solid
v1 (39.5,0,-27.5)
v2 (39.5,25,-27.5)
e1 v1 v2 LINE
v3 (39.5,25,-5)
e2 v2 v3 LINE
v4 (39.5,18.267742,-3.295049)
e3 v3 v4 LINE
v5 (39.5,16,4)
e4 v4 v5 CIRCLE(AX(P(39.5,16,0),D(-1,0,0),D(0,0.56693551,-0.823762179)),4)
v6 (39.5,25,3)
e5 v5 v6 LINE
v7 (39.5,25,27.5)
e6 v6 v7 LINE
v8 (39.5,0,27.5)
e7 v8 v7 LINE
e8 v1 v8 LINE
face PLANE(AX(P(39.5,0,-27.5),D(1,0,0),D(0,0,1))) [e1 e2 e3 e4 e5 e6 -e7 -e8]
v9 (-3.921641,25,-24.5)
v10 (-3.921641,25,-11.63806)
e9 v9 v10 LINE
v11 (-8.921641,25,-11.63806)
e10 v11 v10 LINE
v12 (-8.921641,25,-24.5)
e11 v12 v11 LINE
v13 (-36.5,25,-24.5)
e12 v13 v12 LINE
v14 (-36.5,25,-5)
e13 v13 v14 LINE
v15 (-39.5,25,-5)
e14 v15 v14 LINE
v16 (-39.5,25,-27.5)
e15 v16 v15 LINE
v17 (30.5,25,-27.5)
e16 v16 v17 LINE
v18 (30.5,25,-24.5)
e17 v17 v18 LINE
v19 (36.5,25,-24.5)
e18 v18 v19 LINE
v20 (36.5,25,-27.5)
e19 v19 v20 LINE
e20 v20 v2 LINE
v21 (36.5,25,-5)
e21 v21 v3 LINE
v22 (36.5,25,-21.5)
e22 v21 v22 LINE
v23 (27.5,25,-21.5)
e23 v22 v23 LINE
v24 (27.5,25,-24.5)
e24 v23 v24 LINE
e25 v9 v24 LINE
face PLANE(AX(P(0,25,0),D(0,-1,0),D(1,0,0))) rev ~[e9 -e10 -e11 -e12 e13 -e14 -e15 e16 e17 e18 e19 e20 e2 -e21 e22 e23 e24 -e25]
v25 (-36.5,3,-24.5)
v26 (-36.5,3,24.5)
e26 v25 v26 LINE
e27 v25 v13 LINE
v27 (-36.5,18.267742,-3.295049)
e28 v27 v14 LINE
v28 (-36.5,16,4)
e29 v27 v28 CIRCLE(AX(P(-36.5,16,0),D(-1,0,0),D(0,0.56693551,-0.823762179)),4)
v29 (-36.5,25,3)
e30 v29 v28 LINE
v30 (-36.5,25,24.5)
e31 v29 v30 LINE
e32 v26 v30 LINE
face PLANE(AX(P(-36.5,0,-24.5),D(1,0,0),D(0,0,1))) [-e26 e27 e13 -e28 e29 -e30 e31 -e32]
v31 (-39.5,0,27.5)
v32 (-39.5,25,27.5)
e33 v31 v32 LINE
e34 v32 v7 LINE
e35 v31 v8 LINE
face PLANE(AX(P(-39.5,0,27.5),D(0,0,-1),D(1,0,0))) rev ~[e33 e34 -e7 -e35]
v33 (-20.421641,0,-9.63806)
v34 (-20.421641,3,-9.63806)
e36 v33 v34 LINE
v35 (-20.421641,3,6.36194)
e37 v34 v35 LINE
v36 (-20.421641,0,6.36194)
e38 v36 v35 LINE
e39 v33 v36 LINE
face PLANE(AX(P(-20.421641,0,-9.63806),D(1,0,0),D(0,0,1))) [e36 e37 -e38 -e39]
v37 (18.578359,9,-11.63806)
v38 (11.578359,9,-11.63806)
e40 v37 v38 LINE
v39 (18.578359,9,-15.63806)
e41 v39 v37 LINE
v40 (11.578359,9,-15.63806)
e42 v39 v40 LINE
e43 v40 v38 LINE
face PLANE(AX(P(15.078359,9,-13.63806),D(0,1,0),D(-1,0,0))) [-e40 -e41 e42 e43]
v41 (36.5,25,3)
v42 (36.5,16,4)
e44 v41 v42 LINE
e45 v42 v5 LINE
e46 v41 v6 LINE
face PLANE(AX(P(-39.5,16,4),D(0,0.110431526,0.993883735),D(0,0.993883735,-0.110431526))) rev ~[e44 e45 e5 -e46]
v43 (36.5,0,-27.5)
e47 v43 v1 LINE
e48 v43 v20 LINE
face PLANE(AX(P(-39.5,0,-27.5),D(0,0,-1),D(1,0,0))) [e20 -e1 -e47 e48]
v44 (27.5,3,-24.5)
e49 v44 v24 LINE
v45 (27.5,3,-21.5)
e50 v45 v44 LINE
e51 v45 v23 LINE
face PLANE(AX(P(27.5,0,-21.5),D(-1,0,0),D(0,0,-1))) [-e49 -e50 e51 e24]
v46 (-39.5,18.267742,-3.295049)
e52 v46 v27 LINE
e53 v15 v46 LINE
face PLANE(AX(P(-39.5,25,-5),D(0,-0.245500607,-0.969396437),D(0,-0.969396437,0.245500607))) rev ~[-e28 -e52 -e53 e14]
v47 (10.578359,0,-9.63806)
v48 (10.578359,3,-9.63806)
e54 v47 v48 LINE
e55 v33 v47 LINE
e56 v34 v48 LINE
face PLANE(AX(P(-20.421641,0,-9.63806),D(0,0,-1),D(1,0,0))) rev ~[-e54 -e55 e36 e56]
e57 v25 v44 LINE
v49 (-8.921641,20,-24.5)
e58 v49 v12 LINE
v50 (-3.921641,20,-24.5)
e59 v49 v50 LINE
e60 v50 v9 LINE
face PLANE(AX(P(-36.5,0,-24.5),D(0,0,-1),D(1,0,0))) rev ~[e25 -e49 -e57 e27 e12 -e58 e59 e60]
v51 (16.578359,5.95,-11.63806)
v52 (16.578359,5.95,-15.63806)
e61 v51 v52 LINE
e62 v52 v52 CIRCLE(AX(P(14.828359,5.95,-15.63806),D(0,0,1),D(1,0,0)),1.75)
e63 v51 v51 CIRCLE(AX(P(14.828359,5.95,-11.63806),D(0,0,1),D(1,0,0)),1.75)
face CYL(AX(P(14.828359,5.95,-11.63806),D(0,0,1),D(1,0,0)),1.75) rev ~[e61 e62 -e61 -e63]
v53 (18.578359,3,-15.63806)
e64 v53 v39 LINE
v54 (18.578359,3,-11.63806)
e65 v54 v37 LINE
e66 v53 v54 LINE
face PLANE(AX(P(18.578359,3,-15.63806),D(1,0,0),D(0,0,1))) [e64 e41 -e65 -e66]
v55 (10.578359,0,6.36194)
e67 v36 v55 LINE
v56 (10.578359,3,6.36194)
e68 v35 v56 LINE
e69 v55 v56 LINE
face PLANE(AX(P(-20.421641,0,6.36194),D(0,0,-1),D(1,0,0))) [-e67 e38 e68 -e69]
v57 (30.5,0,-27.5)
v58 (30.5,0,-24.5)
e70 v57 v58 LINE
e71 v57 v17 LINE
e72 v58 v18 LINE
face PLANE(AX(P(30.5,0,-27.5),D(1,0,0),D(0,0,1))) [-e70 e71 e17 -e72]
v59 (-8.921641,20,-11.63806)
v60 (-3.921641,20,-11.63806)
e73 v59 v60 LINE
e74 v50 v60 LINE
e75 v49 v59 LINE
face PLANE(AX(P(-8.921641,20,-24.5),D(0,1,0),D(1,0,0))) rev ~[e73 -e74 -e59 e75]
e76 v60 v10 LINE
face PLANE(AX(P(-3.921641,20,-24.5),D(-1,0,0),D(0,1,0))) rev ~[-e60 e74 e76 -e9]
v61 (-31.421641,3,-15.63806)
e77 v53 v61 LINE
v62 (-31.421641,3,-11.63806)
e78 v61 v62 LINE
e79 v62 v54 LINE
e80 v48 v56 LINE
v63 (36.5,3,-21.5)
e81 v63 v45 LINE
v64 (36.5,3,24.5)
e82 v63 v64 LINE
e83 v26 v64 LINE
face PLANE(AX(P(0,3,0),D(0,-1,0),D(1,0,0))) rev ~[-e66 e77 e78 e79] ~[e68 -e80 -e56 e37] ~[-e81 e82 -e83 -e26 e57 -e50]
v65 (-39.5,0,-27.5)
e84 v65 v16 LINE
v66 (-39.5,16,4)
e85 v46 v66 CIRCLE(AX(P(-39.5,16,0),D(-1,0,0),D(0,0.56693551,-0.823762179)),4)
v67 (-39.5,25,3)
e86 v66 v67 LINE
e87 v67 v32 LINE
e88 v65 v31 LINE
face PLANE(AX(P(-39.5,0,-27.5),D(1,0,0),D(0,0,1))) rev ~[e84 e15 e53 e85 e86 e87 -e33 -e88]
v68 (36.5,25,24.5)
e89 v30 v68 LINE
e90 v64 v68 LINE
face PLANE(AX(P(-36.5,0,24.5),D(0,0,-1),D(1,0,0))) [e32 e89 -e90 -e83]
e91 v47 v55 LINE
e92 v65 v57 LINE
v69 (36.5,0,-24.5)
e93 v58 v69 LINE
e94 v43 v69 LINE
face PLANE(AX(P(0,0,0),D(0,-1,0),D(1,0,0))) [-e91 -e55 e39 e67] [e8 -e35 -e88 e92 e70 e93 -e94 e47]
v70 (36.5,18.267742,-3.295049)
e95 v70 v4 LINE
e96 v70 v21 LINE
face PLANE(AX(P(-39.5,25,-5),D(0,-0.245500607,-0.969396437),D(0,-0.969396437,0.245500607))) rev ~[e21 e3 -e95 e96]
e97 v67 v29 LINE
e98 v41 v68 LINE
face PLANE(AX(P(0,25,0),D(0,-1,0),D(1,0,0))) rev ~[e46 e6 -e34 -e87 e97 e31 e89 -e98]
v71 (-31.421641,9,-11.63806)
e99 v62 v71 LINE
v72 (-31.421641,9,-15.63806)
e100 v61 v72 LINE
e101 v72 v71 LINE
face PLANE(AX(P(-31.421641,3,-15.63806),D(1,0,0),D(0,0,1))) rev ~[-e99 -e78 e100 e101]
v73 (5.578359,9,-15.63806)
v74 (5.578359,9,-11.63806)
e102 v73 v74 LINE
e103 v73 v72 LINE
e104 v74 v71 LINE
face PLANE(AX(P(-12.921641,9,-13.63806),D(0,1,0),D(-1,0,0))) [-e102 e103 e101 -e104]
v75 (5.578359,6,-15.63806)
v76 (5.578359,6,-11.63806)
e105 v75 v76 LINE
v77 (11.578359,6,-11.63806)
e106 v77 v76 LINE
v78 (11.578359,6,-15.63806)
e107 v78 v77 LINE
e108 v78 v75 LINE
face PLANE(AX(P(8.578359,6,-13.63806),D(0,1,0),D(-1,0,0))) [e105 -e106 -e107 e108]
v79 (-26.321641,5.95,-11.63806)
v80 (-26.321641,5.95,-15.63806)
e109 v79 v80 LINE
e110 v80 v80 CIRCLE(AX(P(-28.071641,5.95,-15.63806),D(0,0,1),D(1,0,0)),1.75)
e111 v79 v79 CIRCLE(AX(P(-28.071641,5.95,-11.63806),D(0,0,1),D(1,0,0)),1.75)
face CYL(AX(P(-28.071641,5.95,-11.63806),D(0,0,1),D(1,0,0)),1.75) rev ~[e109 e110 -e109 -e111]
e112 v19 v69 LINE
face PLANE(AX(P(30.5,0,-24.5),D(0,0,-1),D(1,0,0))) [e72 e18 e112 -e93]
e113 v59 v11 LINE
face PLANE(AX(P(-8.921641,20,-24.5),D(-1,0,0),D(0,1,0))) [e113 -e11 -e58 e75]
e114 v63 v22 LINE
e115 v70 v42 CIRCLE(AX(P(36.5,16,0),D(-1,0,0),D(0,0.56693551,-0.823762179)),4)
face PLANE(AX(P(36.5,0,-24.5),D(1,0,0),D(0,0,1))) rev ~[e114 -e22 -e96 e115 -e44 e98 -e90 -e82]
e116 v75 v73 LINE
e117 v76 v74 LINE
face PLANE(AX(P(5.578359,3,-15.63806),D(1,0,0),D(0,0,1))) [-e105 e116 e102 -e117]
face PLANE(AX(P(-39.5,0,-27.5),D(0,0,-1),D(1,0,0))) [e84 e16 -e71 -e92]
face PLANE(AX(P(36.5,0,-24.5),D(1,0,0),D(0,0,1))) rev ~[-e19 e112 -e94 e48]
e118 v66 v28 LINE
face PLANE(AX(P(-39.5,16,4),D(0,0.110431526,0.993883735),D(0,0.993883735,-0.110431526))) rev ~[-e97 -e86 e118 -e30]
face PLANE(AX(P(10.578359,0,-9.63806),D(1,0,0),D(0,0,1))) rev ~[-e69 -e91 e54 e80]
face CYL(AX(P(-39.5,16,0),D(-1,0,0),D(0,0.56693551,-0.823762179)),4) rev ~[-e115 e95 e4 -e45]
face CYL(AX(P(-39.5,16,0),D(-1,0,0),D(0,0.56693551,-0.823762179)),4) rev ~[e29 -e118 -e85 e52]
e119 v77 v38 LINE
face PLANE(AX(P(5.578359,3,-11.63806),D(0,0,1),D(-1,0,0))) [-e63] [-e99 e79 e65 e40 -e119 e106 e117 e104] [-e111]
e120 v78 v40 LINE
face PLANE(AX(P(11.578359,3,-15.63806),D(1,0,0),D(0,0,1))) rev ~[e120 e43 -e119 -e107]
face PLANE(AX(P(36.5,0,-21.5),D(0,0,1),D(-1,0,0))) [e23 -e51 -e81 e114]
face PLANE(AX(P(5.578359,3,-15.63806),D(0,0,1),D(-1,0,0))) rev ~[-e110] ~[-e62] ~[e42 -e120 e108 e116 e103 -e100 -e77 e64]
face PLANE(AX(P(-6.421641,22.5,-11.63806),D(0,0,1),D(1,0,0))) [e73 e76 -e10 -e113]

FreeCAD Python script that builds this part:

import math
import FreeCAD as App
import Part
import Sketcher
from FreeCAD import Vector

doc = App.newDocument("Part")
body = doc.addObject("PartDesign::Body", "Body")

# Sketch on XZ plane
sketch1 = body.newObject("Sketcher::SketchObject", "Sketch")
sketch1.AttachmentSupport = (doc.getObject("XZ_Plane"), [""])
sketch1.MapMode = "FlatFace"
sketch1.addGeometry([
    Part.LineSegment(Vector(-40, 28, 0), Vector(-40, -28, 0)),  # 0
    Part.LineSegment(Vector(-40, -28, 0), Vector(40, -28, 0)),  # 1
    Part.LineSegment(Vector(40, -28, 0), Vector(40, 28, 0)),  # 2
    Part.LineSegment(Vector(40, 28, 0), Vector(-40, 28, 0)),  # 3
    Part.LineSegment(Vector(36, -24, 0), Vector(-36, -24, 0)),  # 4
    Part.LineSegment(Vector(-36, -24, 0), Vector(-36, 24, 0)),  # 5
    Part.LineSegment(Vector(-36, 24, 0), Vector(36, 24, 0)),  # 6
    Part.LineSegment(Vector(36, 24, 0), Vector(36, -24, 0)),  # 7
], False)
sketch1.addConstraint([
    Sketcher.Constraint("Coincident", 0, 2, 1, 1),
    Sketcher.Constraint("Coincident", 1, 2, 2, 1),
    Sketcher.Constraint("Coincident", 2, 2, 3, 1),
    Sketcher.Constraint("Coincident", 3, 2, 0, 1),
    Sketcher.Constraint("Coincident", 4, 2, 5, 1),
    Sketcher.Constraint("Coincident", 5, 2, 6, 1),
    Sketcher.Constraint("Coincident", 6, 2, 7, 1),
    Sketcher.Constraint("Coincident", 7, 2, 4, 1),
    Sketcher.Constraint("Vertical", 0),
    Sketcher.Constraint("Horizontal", 1),
    Sketcher.Constraint("Vertical", 2),
    Sketcher.Constraint("Horizontal", 3),
    Sketcher.Constraint("Horizontal", 4),
    Sketcher.Constraint("Vertical", 5),
    Sketcher.Constraint("Horizontal", 6),
    Sketcher.Constraint("Vertical", 7),
    Sketcher.Constraint("Symmetric", 0, 2, 2, 2, -1, 1),
    Sketcher.Constraint("Symmetric", 4, 2, 6, 2, -1, 1),
    Sketcher.Constraint("DistanceX", 1, 1, 1, 2, 79.0),
    Sketcher.Constraint("DistanceX", 4, 2, 4, 1, 73.0),
    Sketcher.Constraint("DistanceY", 0, 2, 0, 1, 55.0),
    Sketcher.Constraint("DistanceY", 5, 1, 5, 2, 49.0),
])
pad1 = body.newObject("PartDesign::Pad", "Pad")
pad1.Profile = sketch1
pad1.Length = 25
pad1.Reversed = True

# Sketch on YZ plane
sketch2 = body.newObject("Sketcher::SketchObject", "Sketch001")
sketch2.AttachmentSupport = (doc.getObject("YZ_Plane"), [""])
sketch2.MapMode = "FlatFace"
sketch2.AttachmentOffset = App.Placement(Vector(0, 0, -39.5), App.Rotation())
sketch2.addGeometry([
    Part.LineSegment(Vector(25, -5, 0), Vector(18.3, -3.3, 0)),
    Part.ArcOfCircle(Part.Circle(Vector(16, 0, 0), Vector(0, 0, 1), 4), math.radians(90), math.radians(305)),
    Part.LineSegment(Vector(16, 4, 0), Vector(25, 3, 0)),
    Part.LineSegment(Vector(25, 3, 0), Vector(25, -5, 0)),
], False)
sketch2.addConstraint([
    Sketcher.Constraint("Coincident", 0, 2, 1, 2),
    Sketcher.Constraint("Coincident", 1, 1, 2, 1),
    Sketcher.Constraint("Coincident", 2, 2, 3, 1),
    Sketcher.Constraint("Coincident", 3, 2, 0, 1),
    Sketcher.Constraint("Vertical", 3),
    Sketcher.Constraint("PointOnObject", 1, 3, -1),
    Sketcher.Constraint("Radius", 1, 4.0),
    Sketcher.Constraint("DistanceY", 3, 2, 3, 1, 8.0),
    Sketcher.Constraint("DistanceX", -1, 1, 1, 3, 16.0),
    Sketcher.Constraint("DistanceX", -1, 1, 1, 1, 16.0),
    Sketcher.Constraint("DistanceX", -1, 1, 2, 2, 25.0),
    Sketcher.Constraint("DistanceY", -1, 1, 2, 2, 3.0),
    Sketcher.Constraint("DistanceX", -1, 1, 0, 2, 18.267742),
])
pocket1 = body.newObject("PartDesign::Pocket", "Pocket")
pocket1.Profile = sketch2
pocket1.Type = "ThroughAll"
pocket1.Reversed = True

# Sketch on XZ plane
sketch3 = body.newObject("Sketcher::SketchObject", "Sketch002")
sketch3.AttachmentSupport = (doc.getObject("XZ_Plane"), [""])
sketch3.MapMode = "FlatFace"
sketch3.addGeometry([
    Part.LineSegment(Vector(-36, 24, 0), Vector(-36, -24, 0)),  # 0
    Part.LineSegment(Vector(-36, -24, 0), Vector(36, -24, 0)),  # 1
    Part.LineSegment(Vector(36, -24, 0), Vector(36, 24, 0)),  # 2
    Part.LineSegment(Vector(36, 24, 0), Vector(-36, 24, 0)),  # 3
    Part.LineSegment(Vector(11, -10, 0), Vector(-20, -10, 0)),  # 4
    Part.LineSegment(Vector(-20, -10, 0), Vector(-20, 6, 0)),  # 5
    Part.LineSegment(Vector(-20, 6, 0), Vector(11, 6, 0)),  # 6
    Part.LineSegment(Vector(11, 6, 0), Vector(11, -10, 0)),  # 7
], False)
sketch3.addConstraint([
    Sketcher.Constraint("Coincident", 0, 2, 1, 1),
    Sketcher.Constraint("Coincident", 1, 2, 2, 1),
    Sketcher.Constraint("Coincident", 2, 2, 3, 1),
    Sketcher.Constraint("Coincident", 3, 2, 0, 1),
    Sketcher.Constraint("Coincident", 4, 2, 5, 1),
    Sketcher.Constraint("Coincident", 5, 2, 6, 1),
    Sketcher.Constraint("Coincident", 6, 2, 7, 1),
    Sketcher.Constraint("Coincident", 7, 2, 4, 1),
    Sketcher.Constraint("Vertical", 0),
    Sketcher.Constraint("Horizontal", 1),
    Sketcher.Constraint("Vertical", 2),
    Sketcher.Constraint("Horizontal", 3),
    Sketcher.Constraint("Horizontal", 4),
    Sketcher.Constraint("Vertical", 5),
    Sketcher.Constraint("Horizontal", 6),
    Sketcher.Constraint("Vertical", 7),
    Sketcher.Constraint("Symmetric", 0, 2, 2, 2, -1, 1),
    Sketcher.Constraint("DistanceX", 1, 1, 1, 2, 73.0),
    Sketcher.Constraint("DistanceX", 4, 2, 4, 1, 31.0),
    Sketcher.Constraint("DistanceY", 0, 2, 0, 1, 49.0),
    Sketcher.Constraint("DistanceY", 5, 1, 5, 2, 16.0),
    Sketcher.Constraint("DistanceX", 4, 2, -1, 1, 20.421641),
    Sketcher.Constraint("DistanceY", 4, 2, -1, 1, 9.63806),
])
pad2 = body.newObject("PartDesign::Pad", "Pad001")
pad2.Profile = sketch3
pad2.Length = 3
pad2.Reversed = True

# Sketch on XZ plane
sketch4 = body.newObject("Sketcher::SketchObject", "Sketch003")
sketch4.AttachmentSupport = (doc.getObject("XZ_Plane"), [""])
sketch4.MapMode = "FlatFace"
sketch4.AttachmentOffset = App.Placement(Vector(0, 0, -3), App.Rotation())
sketch4.addGeometry([
    Part.LineSegment(Vector(11.6, -11.6, 0), Vector(11.6, -15.6, 0)),
    Part.LineSegment(Vector(11.6, -15.6, 0), Vector(5.6, -15.6, 0)),
    Part.LineSegment(Vector(5.6, -15.6, 0), Vector(5.6, -11.6, 0)),
    Part.LineSegment(Vector(5.6, -11.6, 0), Vector(11.6, -11.6, 0)),
], False)
sketch4.addConstraint([
    Sketcher.Constraint("Coincident", 0, 2, 1, 1),
    Sketcher.Constraint("Coincident", 1, 2, 2, 1),
    Sketcher.Constraint("Coincident", 2, 2, 3, 1),
    Sketcher.Constraint("Coincident", 3, 2, 0, 1),
    Sketcher.Constraint("Vertical", 0),
    Sketcher.Constraint("Horizontal", 1),
    Sketcher.Constraint("Vertical", 2),
    Sketcher.Constraint("Horizontal", 3),
    Sketcher.Constraint("DistanceX", 1, 2, 1, 1, 6.0),
    Sketcher.Constraint("DistanceY", 0, 2, 0, 1, 4.0),
    Sketcher.Constraint("DistanceX", -1, 1, 0, 2, 11.578359),
    Sketcher.Constraint("DistanceY", 0, 2, -1, 1, 15.63806),
])
pad3 = body.newObject("PartDesign::Pad", "Pad002")
pad3.Profile = sketch4
pad3.Length = 3
pad3.Reversed = True

# Sketch on XZ plane
sketch5 = body.newObject("Sketcher::SketchObject", "Sketch004")
sketch5.AttachmentSupport = (doc.getObject("XZ_Plane"), [""])
sketch5.MapMode = "FlatFace"
sketch5.AttachmentOffset = App.Placement(Vector(0, 0, -3), App.Rotation())
sketch5.addGeometry([
    Part.LineSegment(Vector(5.6, -11.6, 0), Vector(5.6, -15.6, 0)),  # 0
    Part.LineSegment(Vector(5.6, -15.6, 0), Vector(-31.4, -15.6, 0)),  # 1
    Part.LineSegment(Vector(-31.4, -15.6, 0), Vector(-31.4, -11.6, 0)),  # 2
    Part.LineSegment(Vector(-31.4, -11.6, 0), Vector(5.6, -11.6, 0)),  # 3
    Part.LineSegment(Vector(18.6, -11.6, 0), Vector(18.6, -15.6, 0)),  # 4
    Part.LineSegment(Vector(18.6, -15.6, 0), Vector(11.6, -15.6, 0)),  # 5
    Part.LineSegment(Vector(11.6, -15.6, 0), Vector(11.6, -11.6, 0)),  # 6
    Part.LineSegment(Vector(11.6, -11.6, 0), Vector(18.6, -11.6, 0)),  # 7
], False)
sketch5.addConstraint([
    Sketcher.Constraint("Coincident", 0, 2, 1, 1),
    Sketcher.Constraint("Coincident", 1, 2, 2, 1),
    Sketcher.Constraint("Coincident", 2, 2, 3, 1),
    Sketcher.Constraint("Coincident", 3, 2, 0, 1),
    Sketcher.Constraint("Coincident", 4, 2, 5, 1),
    Sketcher.Constraint("Coincident", 5, 2, 6, 1),
    Sketcher.Constraint("Coincident", 6, 2, 7, 1),
    Sketcher.Constraint("Coincident", 7, 2, 4, 1),
    Sketcher.Constraint("Vertical", 0),
    Sketcher.Constraint("Horizontal", 1),
    Sketcher.Constraint("Vertical", 2),
    Sketcher.Constraint("Horizontal", 3),
    Sketcher.Constraint("Vertical", 4),
    Sketcher.Constraint("Horizontal", 5),
    Sketcher.Constraint("Vertical", 6),
    Sketcher.Constraint("Horizontal", 7),
    Sketcher.Constraint("Horizontal", 1, 2, 4, 2),
    Sketcher.Constraint("Horizontal", 3, 2, 6, 2),
    Sketcher.Constraint("DistanceX", 1, 2, 1, 1, 37.0),
    Sketcher.Constraint("DistanceX", 5, 2, 5, 1, 7.0),
    Sketcher.Constraint("DistanceY", 0, 2, 0, 1, 4.0),
    Sketcher.Constraint("DistanceX", 0, 2, 4, 2, 13.0),
    Sketcher.Constraint("DistanceX", -1, 1, 0, 2, 5.578359),
    Sketcher.Constraint("DistanceY", 0, 2, -1, 1, 15.63806),
])
pad4 = body.newObject("PartDesign::Pad", "Pad003")
pad4.Profile = sketch5
pad4.Length = 6
pad4.Reversed = True

# Sketch on XY plane
sketch6 = body.newObject("Sketcher::SketchObject", "Sketch005")
sketch6.AttachmentSupport = (doc.getObject("XY_Plane"), [""])
sketch6.MapMode = "FlatFace"
sketch6.AttachmentOffset = App.Placement(Vector(0, 0, -24.5), App.Rotation())
sketch6.addGeometry([
    Part.LineSegment(Vector(-8.9, 25, 0), Vector(-8.9, 20, 0)),
    Part.LineSegment(Vector(-8.9, 20, 0), Vector(-3.9, 20, 0)),
    Part.LineSegment(Vector(-3.9, 20, 0), Vector(-3.9, 25, 0)),
    Part.LineSegment(Vector(-3.9, 25, 0), Vector(-8.9, 25, 0)),
], False)
sketch6.addConstraint([
    Sketcher.Constraint("Coincident", 0, 2, 1, 1),
    Sketcher.Constraint("Coincident", 1, 2, 2, 1),
    Sketcher.Constraint("Coincident", 2, 2, 3, 1),
    Sketcher.Constraint("Coincident", 3, 2, 0, 1),
    Sketcher.Constraint("Vertical", 0),
    Sketcher.Constraint("Horizontal", 1),
    Sketcher.Constraint("Vertical", 2),
    Sketcher.Constraint("Horizontal", 3),
    Sketcher.Constraint("Equal", 3, 0),
    Sketcher.Constraint("DistanceX", 1, 1, 1, 2, 5.0),
    Sketcher.Constraint("DistanceY", -1, 1, 0, 2, 20.0),
    Sketcher.Constraint("DistanceX", 0, 2, -1, 1, 8.921641),
])
pad5 = body.newObject("PartDesign::Pad", "Pad004")
pad5.Profile = sketch6
pad5.Length = 12.86194

# Sketch on XY plane
sketch7 = body.newObject("Sketcher::SketchObject", "Sketch006")
sketch7.AttachmentSupport = (doc.getObject("XY_Plane"), [""])
sketch7.MapMode = "FlatFace"
sketch7.AttachmentOffset = App.Placement(Vector(0, 0, -11.63806), App.Rotation())
sketch7.addGeometry([
    Part.Circle(Vector(14.8, 6, 0), Vector(0, 0, 1), 1.8),
    Part.Circle(Vector(-28.1, 6, 0), Vector(0, 0, 1), 1.8),
], False)
sketch7.addConstraint([
    Sketcher.Constraint("Equal", 0, 1),
    Sketcher.Constraint("Horizontal", 0, 3, 1, 3),
    Sketcher.Constraint("Diameter", 0, 3.5),
    Sketcher.Constraint("DistanceX", 1, 3, 0, 3, 42.9),
    Sketcher.Constraint("DistanceY", -1, 1, 0, 3, 5.95),
    Sketcher.Constraint("DistanceX", -1, 1, 0, 3, 14.828359),
])
pocket2 = body.newObject("PartDesign::Pocket", "Pocket001")
pocket2.Profile = sketch7
pocket2.Length = 4

# Sketch on XZ plane
sketch8 = body.newObject("Sketcher::SketchObject", "Sketch007")
sketch8.AttachmentSupport = (doc.getObject("XZ_Plane"), [""])
sketch8.MapMode = "FlatFace"
sketch8.addGeometry([
    Part.LineSegment(Vector(30.5, -24.5, 0), Vector(30.5, -27.5, 0)),
    Part.LineSegment(Vector(30.5, -27.5, 0), Vector(36.5, -27.5, 0)),
    Part.LineSegment(Vector(36.5, -27.5, 0), Vector(36.5, -24.5, 0)),
    Part.LineSegment(Vector(36.5, -24.5, 0), Vector(30.5, -24.5, 0)),
], False)
sketch8.addConstraint([
    Sketcher.Constraint("Coincident", 0, 2, 1, 1),
    Sketcher.Constraint("Coincident", 1, 2, 2, 1),
    Sketcher.Constraint("Coincident", 2, 2, 3, 1),
    Sketcher.Constraint("Coincident", 3, 2, 0, 1),
    Sketcher.Constraint("Vertical", 0),
    Sketcher.Constraint("Horizontal", 1),
    Sketcher.Constraint("Vertical", 2),
    Sketcher.Constraint("Horizontal", 3),
    Sketcher.Constraint("DistanceX", 1, 1, 1, 2, 6.0),
    Sketcher.Constraint("DistanceY", 0, 2, 0, 1, 3.0),
    Sketcher.Constraint("DistanceX", -1, 1, 0, 2, 30.5),
    Sketcher.Constraint("DistanceY", 0, 2, -1, 1, 27.5),
])
pocket3 = body.newObject("PartDesign::Pocket", "Pocket002")
pocket3.Profile = sketch8
pocket3.Type = "ThroughAll"

# Sketch on XZ plane
sketch9 = body.newObject("Sketcher::SketchObject", "Sketch008")
sketch9.AttachmentSupport = (doc.getObject("XZ_Plane"), [""])
sketch9.MapMode = "FlatFace"
sketch9.addGeometry([
    Part.LineSegment(Vector(27.5, -27.5, 0), Vector(30.5, -27.5, 0)),  # 0
    Part.LineSegment(Vector(30.5, -27.5, 0), Vector(30.5, -24.5, 0)),  # 1
    Part.LineSegment(Vector(30.5, -24.5, 0), Vector(36.5, -24.5, 0)),  # 2
    Part.LineSegment(Vector(36.5, -24.5, 0), Vector(36.5, -21.5, 0)),  # 3
    Part.LineSegment(Vector(36.5, -21.5, 0), Vector(27.5, -21.5, 0)),  # 4
    Part.LineSegment(Vector(27.5, -21.5, 0), Vector(27.5, -27.5, 0)),  # 5
], False)
sketch9.addConstraint([
    Sketcher.Constraint("Coincident", 0, 2, 1, 1),
    Sketcher.Constraint("Coincident", 1, 2, 2, 1),
    Sketcher.Constraint("Coincident", 2, 2, 3, 1),
    Sketcher.Constraint("Coincident", 3, 2, 4, 1),
    Sketcher.Constraint("Coincident", 4, 2, 5, 1),
    Sketcher.Constraint("Coincident", 5, 2, 0, 1),
    Sketcher.Constraint("Horizontal", 0),
    Sketcher.Constraint("Vertical", 1),
    Sketcher.Constraint("Horizontal", 2),
    Sketcher.Constraint("Vertical", 3),
    Sketcher.Constraint("Horizontal", 4),
    Sketcher.Constraint("Vertical", 5),
    Sketcher.Constraint("Equal", 0, 1),
    Sketcher.Constraint("Equal", 1, 3),
    Sketcher.Constraint("Equal", 2, 5),
    Sketcher.Constraint("DistanceX", 0, 1, 0, 2, 3.0),
    Sketcher.Constraint("DistanceX", -1, 1, 0, 2, 30.5),
    Sketcher.Constraint("DistanceY", 0, 2, -1, 1, 27.5),
])
pad6 = body.newObject("PartDesign::Pad", "Pad005")
pad6.Profile = sketch9
pad6.Length = 25
pad6.Reversed = True

doc.recompute()
